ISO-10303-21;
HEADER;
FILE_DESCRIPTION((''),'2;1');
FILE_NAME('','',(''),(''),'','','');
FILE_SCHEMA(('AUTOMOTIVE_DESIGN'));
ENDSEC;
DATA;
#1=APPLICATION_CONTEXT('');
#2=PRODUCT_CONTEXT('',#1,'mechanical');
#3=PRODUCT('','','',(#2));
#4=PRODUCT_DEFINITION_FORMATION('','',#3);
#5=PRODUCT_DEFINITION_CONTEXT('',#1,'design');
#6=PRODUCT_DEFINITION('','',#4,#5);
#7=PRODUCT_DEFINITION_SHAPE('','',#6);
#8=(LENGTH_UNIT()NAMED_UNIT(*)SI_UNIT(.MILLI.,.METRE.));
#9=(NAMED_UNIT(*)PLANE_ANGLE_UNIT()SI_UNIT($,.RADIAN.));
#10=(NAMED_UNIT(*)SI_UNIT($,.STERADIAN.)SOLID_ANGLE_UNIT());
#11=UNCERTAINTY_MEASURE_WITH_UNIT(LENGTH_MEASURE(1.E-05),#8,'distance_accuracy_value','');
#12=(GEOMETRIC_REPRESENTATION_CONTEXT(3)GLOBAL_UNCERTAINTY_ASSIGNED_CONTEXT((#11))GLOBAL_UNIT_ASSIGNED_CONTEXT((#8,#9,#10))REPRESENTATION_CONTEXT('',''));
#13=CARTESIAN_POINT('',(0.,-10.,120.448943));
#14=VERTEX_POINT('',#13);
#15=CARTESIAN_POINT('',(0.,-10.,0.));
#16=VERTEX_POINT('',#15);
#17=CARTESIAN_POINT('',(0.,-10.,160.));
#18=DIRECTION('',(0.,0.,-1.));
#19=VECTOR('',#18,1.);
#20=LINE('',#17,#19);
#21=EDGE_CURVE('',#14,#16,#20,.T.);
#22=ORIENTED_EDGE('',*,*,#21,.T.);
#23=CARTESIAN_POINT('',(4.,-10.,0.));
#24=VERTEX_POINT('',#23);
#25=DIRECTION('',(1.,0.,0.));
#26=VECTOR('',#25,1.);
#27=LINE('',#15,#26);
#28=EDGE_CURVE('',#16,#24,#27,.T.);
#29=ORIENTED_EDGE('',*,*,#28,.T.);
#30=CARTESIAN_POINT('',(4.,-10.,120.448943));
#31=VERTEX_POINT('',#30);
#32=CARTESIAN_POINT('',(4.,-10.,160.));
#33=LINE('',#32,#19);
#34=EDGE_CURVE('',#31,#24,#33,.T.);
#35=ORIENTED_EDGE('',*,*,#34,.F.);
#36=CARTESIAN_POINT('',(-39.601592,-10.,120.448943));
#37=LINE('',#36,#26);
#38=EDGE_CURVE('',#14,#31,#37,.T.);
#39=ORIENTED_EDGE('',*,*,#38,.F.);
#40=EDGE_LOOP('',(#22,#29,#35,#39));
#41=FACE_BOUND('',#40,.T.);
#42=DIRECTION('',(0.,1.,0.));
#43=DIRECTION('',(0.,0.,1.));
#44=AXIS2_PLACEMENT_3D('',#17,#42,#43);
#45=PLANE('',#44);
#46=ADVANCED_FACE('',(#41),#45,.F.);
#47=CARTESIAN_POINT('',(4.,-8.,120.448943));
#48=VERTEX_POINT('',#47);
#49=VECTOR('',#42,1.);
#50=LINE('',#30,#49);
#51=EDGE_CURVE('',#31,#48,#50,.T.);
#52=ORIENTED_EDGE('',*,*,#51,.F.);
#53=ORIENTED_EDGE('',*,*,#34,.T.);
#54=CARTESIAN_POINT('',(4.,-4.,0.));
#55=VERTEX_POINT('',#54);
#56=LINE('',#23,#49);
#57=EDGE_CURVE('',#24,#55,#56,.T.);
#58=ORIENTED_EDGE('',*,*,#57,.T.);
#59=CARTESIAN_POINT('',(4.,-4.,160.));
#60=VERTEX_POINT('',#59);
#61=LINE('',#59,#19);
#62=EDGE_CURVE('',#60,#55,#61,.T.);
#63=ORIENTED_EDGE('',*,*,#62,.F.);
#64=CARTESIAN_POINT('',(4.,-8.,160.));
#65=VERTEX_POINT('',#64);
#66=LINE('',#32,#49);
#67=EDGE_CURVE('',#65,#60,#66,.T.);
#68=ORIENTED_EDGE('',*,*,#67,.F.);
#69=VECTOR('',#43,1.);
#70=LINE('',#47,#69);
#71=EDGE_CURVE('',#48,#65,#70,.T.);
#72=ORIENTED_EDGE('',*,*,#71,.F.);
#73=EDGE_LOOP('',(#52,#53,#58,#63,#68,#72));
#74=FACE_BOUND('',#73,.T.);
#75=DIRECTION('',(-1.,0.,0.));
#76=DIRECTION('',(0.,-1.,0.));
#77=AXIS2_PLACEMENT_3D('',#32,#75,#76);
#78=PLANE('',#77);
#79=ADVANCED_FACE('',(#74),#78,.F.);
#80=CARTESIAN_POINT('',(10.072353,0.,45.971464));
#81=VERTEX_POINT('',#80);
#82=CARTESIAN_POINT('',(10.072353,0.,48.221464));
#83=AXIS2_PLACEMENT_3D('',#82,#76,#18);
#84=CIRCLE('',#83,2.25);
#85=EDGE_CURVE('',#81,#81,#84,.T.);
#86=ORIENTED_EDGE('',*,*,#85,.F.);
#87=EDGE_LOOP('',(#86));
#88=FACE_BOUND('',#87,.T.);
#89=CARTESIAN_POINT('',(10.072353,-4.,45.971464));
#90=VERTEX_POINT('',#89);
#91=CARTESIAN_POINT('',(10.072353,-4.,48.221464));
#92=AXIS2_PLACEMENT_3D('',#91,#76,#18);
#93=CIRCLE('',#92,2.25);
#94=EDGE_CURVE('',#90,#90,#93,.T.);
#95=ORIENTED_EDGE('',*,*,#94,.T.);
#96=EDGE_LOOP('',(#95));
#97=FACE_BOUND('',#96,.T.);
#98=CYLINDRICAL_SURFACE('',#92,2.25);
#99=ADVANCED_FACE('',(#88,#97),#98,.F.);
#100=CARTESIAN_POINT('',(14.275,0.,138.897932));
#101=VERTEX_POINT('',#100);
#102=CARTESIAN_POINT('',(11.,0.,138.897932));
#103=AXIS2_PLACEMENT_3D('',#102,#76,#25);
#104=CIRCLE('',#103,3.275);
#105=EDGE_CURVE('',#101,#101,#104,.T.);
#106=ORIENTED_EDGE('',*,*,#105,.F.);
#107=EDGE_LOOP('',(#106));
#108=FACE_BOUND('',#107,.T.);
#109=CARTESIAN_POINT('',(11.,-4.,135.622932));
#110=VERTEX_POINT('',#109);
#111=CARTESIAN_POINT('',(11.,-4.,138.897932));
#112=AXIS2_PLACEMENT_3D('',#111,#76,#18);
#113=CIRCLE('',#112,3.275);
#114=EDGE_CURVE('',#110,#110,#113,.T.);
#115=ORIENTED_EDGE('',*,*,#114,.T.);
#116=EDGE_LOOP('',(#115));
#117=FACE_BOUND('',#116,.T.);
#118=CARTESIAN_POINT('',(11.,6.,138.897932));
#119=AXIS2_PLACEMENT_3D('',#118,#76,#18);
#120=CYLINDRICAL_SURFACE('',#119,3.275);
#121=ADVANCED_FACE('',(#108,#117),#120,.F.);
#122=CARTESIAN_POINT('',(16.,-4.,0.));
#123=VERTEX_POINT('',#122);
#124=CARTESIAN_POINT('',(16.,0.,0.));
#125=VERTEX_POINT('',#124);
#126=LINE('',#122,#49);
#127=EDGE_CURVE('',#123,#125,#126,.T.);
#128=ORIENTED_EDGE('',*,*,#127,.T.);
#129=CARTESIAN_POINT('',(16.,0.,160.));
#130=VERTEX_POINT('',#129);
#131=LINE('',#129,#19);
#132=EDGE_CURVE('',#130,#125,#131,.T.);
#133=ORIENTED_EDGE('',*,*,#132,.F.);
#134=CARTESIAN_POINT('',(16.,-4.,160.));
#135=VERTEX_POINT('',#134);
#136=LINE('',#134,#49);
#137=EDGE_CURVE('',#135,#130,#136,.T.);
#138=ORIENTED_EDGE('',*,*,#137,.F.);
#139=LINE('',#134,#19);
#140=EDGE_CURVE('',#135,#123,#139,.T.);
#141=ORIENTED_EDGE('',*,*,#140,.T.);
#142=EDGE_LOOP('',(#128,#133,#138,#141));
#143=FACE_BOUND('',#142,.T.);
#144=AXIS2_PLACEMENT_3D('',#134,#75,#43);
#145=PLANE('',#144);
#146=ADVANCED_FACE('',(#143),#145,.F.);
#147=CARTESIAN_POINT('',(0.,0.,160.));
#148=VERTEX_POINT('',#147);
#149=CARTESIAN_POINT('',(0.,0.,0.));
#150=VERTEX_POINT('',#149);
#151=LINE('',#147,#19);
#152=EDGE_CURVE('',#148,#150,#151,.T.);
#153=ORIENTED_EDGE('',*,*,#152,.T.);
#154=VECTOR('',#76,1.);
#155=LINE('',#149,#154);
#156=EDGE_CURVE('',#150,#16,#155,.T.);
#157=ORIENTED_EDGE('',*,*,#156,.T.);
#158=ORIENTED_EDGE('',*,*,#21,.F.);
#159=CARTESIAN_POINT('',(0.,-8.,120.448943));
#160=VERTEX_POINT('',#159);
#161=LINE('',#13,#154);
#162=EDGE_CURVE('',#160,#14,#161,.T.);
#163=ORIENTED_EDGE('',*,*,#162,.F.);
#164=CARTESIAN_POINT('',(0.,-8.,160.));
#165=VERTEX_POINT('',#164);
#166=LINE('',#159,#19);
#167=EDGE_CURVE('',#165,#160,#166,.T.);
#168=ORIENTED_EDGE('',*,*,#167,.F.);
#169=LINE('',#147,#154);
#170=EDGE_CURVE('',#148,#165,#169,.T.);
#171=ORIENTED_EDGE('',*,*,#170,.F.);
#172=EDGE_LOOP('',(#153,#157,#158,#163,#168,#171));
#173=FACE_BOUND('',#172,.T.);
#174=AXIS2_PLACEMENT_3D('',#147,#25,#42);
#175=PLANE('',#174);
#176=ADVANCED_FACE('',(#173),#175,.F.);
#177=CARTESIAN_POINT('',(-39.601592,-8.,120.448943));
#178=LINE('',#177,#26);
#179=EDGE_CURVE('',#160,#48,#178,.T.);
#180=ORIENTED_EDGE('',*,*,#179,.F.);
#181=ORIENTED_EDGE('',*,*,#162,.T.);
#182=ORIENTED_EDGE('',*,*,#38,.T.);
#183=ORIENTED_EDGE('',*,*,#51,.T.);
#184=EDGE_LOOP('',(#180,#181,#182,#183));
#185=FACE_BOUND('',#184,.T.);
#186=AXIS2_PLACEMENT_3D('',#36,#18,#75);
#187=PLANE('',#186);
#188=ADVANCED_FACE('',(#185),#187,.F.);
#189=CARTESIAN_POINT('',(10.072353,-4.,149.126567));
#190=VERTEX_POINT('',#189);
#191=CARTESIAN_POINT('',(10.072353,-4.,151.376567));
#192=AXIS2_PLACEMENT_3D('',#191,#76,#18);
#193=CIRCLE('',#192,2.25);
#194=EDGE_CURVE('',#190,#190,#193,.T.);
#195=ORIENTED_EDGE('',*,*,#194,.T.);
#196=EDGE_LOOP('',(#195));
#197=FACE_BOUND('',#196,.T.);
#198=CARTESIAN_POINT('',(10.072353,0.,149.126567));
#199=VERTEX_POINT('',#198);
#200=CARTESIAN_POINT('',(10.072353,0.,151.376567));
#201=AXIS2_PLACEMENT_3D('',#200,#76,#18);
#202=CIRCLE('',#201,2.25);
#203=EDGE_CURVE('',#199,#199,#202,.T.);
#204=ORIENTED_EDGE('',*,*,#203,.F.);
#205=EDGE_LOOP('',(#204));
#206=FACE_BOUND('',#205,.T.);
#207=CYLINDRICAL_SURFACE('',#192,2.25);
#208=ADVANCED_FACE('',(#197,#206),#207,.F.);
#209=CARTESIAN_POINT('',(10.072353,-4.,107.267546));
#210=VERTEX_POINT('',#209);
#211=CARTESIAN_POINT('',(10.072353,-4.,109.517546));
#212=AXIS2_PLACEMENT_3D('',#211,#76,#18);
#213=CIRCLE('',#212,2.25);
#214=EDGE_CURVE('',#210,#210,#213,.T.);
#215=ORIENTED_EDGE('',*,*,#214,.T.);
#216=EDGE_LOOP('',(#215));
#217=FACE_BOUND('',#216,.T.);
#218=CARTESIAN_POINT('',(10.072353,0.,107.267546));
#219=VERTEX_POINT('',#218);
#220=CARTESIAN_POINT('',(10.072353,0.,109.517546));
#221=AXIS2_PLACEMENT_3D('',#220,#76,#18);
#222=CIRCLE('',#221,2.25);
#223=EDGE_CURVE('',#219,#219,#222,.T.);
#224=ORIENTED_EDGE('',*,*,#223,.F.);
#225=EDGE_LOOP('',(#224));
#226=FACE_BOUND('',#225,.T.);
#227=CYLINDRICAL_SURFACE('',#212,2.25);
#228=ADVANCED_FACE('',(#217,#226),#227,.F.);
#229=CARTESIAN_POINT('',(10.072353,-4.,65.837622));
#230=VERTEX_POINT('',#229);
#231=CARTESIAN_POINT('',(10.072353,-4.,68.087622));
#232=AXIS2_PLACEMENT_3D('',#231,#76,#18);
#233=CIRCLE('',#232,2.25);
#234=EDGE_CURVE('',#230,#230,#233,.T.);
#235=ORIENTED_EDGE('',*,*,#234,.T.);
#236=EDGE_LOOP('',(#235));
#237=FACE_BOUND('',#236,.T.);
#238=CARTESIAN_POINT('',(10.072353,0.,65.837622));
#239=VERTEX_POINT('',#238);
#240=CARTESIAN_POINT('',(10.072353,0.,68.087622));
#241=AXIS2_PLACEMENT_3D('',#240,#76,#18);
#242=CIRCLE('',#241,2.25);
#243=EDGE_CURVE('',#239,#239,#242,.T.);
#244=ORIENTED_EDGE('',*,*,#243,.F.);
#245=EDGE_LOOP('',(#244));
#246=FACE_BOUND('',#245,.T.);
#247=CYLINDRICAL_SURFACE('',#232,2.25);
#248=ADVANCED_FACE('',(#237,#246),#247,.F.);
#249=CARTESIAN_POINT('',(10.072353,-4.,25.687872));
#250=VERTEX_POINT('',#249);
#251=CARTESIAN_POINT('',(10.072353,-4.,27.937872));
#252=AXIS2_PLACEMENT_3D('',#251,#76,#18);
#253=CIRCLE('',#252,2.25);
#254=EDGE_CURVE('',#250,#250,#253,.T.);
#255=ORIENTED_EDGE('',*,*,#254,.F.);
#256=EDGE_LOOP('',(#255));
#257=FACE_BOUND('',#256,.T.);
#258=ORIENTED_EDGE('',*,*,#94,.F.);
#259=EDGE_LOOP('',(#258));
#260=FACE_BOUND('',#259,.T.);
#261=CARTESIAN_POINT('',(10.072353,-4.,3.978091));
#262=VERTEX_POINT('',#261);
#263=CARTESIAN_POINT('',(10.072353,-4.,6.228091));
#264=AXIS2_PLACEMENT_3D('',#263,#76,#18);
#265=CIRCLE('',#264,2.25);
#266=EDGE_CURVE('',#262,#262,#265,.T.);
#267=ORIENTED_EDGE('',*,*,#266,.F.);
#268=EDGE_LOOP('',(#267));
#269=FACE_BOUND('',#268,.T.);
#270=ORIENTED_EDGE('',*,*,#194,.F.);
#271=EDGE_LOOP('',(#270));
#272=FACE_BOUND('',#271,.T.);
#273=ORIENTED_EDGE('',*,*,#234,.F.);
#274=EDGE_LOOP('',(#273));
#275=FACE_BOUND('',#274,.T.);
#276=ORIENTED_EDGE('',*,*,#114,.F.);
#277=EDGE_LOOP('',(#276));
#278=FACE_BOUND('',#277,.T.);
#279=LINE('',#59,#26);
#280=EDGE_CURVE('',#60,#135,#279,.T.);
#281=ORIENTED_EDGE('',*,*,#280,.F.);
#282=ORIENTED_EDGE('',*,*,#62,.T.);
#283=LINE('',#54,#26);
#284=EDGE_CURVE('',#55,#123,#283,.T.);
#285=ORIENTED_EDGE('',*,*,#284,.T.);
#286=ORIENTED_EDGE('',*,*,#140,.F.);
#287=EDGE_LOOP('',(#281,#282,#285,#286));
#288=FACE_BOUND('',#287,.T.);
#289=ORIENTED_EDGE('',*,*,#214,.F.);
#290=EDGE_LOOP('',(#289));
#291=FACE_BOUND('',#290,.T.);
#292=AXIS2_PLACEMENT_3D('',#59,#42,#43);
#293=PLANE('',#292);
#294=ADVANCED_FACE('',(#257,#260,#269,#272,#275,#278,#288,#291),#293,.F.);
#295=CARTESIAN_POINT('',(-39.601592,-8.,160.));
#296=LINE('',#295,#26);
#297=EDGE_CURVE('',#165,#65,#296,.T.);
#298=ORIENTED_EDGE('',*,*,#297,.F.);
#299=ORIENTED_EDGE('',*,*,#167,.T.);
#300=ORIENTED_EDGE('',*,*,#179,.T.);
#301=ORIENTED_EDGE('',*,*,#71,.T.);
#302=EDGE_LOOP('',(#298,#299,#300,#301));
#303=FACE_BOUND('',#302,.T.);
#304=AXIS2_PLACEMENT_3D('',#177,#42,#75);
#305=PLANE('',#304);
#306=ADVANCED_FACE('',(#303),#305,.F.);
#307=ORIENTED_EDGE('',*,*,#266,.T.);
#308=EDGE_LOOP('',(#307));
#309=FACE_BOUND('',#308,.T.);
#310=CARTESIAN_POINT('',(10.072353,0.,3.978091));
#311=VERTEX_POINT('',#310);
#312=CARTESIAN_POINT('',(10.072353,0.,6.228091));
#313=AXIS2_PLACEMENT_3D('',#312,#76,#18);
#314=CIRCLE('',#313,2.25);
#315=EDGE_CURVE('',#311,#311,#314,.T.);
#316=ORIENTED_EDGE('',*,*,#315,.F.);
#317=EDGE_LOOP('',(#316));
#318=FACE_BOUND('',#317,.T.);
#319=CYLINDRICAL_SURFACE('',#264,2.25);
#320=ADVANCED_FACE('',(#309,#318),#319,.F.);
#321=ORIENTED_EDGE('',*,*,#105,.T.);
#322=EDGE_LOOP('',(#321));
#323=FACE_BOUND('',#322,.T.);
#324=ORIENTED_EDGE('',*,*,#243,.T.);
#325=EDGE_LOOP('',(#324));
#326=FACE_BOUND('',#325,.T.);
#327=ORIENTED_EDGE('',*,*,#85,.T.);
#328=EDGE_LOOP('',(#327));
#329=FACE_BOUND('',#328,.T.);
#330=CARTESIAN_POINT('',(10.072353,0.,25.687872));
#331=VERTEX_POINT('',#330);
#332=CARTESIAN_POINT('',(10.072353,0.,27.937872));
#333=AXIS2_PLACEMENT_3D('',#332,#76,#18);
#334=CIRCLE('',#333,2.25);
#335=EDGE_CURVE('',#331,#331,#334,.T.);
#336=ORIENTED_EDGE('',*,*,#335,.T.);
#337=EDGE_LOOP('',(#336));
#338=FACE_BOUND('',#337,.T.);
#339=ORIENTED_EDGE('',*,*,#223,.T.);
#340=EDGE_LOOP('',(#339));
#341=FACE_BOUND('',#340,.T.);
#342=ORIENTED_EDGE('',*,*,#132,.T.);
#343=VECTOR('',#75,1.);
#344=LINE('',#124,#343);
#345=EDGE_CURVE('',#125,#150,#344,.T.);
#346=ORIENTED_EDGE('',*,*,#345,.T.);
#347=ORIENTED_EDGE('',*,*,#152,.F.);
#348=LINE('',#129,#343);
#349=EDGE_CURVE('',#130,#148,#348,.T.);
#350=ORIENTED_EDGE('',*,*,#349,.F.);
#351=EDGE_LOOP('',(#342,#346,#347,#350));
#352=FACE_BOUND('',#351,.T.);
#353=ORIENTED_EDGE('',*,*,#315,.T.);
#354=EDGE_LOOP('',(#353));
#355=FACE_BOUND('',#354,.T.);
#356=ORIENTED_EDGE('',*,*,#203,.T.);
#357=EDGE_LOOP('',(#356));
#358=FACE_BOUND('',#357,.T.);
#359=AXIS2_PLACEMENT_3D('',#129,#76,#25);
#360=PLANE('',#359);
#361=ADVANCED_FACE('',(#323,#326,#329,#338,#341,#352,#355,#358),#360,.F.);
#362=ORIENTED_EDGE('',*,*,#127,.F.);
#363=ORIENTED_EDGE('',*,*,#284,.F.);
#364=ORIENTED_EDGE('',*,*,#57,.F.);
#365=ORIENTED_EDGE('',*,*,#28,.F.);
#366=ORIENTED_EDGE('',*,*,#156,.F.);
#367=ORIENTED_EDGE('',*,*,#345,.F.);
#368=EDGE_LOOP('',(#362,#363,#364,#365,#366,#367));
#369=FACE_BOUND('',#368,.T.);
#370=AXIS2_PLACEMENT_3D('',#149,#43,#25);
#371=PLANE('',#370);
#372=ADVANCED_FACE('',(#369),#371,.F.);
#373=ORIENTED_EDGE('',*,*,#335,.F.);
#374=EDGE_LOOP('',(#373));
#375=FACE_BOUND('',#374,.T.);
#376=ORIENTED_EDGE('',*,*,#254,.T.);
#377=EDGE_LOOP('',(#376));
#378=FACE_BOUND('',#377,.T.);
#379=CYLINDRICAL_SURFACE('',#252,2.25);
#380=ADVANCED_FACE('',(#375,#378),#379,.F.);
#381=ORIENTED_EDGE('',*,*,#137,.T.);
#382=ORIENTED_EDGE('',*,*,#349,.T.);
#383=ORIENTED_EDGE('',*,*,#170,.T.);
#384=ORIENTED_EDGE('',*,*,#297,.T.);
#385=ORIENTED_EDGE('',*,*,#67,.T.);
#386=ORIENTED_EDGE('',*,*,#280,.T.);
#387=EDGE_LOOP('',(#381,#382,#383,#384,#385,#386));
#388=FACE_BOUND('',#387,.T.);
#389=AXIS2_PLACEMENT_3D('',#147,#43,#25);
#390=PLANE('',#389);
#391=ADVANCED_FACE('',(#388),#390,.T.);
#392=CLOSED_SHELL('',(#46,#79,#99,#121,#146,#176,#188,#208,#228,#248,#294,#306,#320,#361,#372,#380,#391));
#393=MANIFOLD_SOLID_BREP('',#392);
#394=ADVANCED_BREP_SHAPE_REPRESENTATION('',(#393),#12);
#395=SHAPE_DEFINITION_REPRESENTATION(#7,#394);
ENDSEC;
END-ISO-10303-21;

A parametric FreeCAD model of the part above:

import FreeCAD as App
import Part
import Sketcher


def add_polygon(sketch, points):
    """Adds a closed chain of lines whose ends are joined by coincident constraints."""
    first, n = sketch.GeometryCount, len(points)
    for a, b in zip(points, points[1:] + points[:1]):
        sketch.addGeometry(Part.LineSegment(App.Vector(*a, 0), App.Vector(*b, 0)), False)
    for i in range(n):
        sketch.addConstraint(Sketcher.Constraint("Coincident", first + i, 2, first + (i + 1) % n, 1))

doc = App.newDocument("Part")
body = doc.addObject("PartDesign::Body", "Body")

# Sketch on XY plane
sketch1 = body.newObject("Sketcher::SketchObject", "Sketch")
sketch1.AttachmentSupport = (doc.getObject("XY_Plane"), [""])
sketch1.MapMode = "FlatFace"
add_polygon(sketch1, [(0, 0), (0, -10), (4, -10), (4, -4), (16, -4), (16, 0)])  # lines 0-5
sketch1.addConstraint(Sketcher.Constraint("Vertical", 0))
sketch1.addConstraint(Sketcher.Constraint("Horizontal", 1))
sketch1.addConstraint(Sketcher.Constraint("Vertical", 2))
sketch1.addConstraint(Sketcher.Constraint("Horizontal", 3))
sketch1.addConstraint(Sketcher.Constraint("Vertical", 4))
sketch1.addConstraint(Sketcher.Constraint("Horizontal", 5))
sketch1.addConstraint(Sketcher.Constraint("Coincident", 5, 2, -1, 1))
sketch1.addConstraint(Sketcher.Constraint("Equal", 1, 4))
sketch1.addConstraint(Sketcher.Constraint("DistanceX", 1, 1, 1, 2, 4.0))
sketch1.addConstraint(Sketcher.Constraint("DistanceX", 3, 1, 3, 2, 12.0))
sketch1.addConstraint(Sketcher.Constraint("DistanceY", 0, 2, 0, 1, 10.0))
pad1 = body.newObject("PartDesign::Pad", "Pad")
pad1.Profile = sketch1
pad1.Length = 160

# Sketch on YZ plane
sketch2 = body.newObject("Sketcher::SketchObject", "Sketch001")
sketch2.AttachmentSupport = (doc.getObject("YZ_Plane"), [""])
sketch2.MapMode = "FlatFace"
sketch2.AttachmentOffset = App.Placement(App.Vector(0, 0, 4), App.Rotation())
add_polygon(sketch2, [(-8, 160), (-10, 160), (-10, 120.4), (-8, 120.4)])  # lines 0-3
sketch2.addConstraint(Sketcher.Constraint("Horizontal", 0))
sketch2.addConstraint(Sketcher.Constraint("Vertical", 1))
sketch2.addConstraint(Sketcher.Constraint("Horizontal", 2))
sketch2.addConstraint(Sketcher.Constraint("Vertical", 3))
sketch2.addConstraint(Sketcher.Constraint("DistanceX", 0, 2, 0, 1, 2.0))
sketch2.addConstraint(Sketcher.Constraint("DistanceX", 0, 2, -1, 1, 10.0))
sketch2.addConstraint(Sketcher.Constraint("DistanceY", -1, 1, 0, 2, 160.0))
sketch2.addConstraint(Sketcher.Constraint("DistanceY", 1, 2, 1, 1, 39.551057))
pocket1 = body.newObject("PartDesign::Pocket", "Pocket")
pocket1.Profile = sketch2
pocket1.Length = 4

# Sketch on XZ plane
sketch3 = body.newObject("Sketcher::SketchObject", "Sketch002")
sketch3.AttachmentSupport = (doc.getObject("XZ_Plane"), [""])
sketch3.MapMode = "FlatFace"
sketch3.AttachmentOffset = App.Placement(App.Vector(0, 0, 4), App.Rotation())
sketch3.addGeometry(Part.Circle(App.Vector(10.1, 6.2, 0), App.Vector(0, 0, 1), 2.2), False)
sketch3.addGeometry(Part.Circle(App.Vector(10.1, 27.9, 0), App.Vector(0, 0, 1), 2.2), False)
sketch3.addGeometry(Part.Circle(App.Vector(10.1, 48.2, 0), App.Vector(0, 0, 1), 2.2), False)
sketch3.addGeometry(Part.Circle(App.Vector(10.1, 68.1, 0), App.Vector(0, 0, 1), 2.2), False)
sketch3.addGeometry(Part.Circle(App.Vector(10.1, 109.5, 0), App.Vector(0, 0, 1), 2.2), False)
sketch3.addGeometry(Part.Circle(App.Vector(10.1, 151.4, 0), App.Vector(0, 0, 1), 2.2), False)
sketch3.addConstraint(Sketcher.Constraint("Equal", 0, 1))
sketch3.addConstraint(Sketcher.Constraint("Equal", 1, 2))
sketch3.addConstraint(Sketcher.Constraint("Equal", 2, 3))
sketch3.addConstraint(Sketcher.Constraint("Equal", 3, 4))
sketch3.addConstraint(Sketcher.Constraint("Equal", 4, 5))
sketch3.addConstraint(Sketcher.Constraint("Vertical", 0, 3, 1, 3))
sketch3.addConstraint(Sketcher.Constraint("Vertical", 1, 3, 2, 3))
sketch3.addConstraint(Sketcher.Constraint("Vertical", 2, 3, 3, 3))
sketch3.addConstraint(Sketcher.Constraint("Vertical", 3, 3, 4, 3))
sketch3.addConstraint(Sketcher.Constraint("Vertical", 4, 3, 5, 3))
sketch3.addConstraint(Sketcher.Constraint("Diameter", 0, 4.5))
sketch3.addConstraint(Sketcher.Constraint("DistanceY", -1, 1, 0, 3, 6.228091))
sketch3.addConstraint(Sketcher.Constraint("DistanceY", -1, 1, 3, 3, 68.087622))
sketch3.addConstraint(Sketcher.Constraint("DistanceY", 0, 3, 1, 3, 21.709782))
sketch3.addConstraint(Sketcher.Constraint("DistanceY", 1, 3, 2, 3, 20.283592))
sketch3.addConstraint(Sketcher.Constraint("DistanceY", 4, 3, 5, 3, 41.859021))
sketch3.addConstraint(Sketcher.Constraint("DistanceX", -1, 1, 0, 3, 10.072353))
sketch3.addConstraint(Sketcher.Constraint("DistanceY", -1, 1, 4, 3, 109.517546))
doc.recompute()
hole = body.newObject("PartDesign::Hole", "Hole")
hole.Profile = sketch3
hole.ThreadType = "None"
hole.Diameter = 4.5
hole.DepthType = "ThroughAll"

# Sketch on XZ plane
sketch4 = body.newObject("Sketcher::SketchObject", "Sketch003")
sketch4.AttachmentSupport = (doc.getObject("XZ_Plane"), [""])
sketch4.MapMode = "FlatFace"
sketch4.AttachmentOffset = App.Placement(App.Vector(0, 0, 4), App.Rotation())
sketch4.addGeometry(Part.Circle(App.Vector(11, 138.9, 0), App.Vector(0, 0, 1), 3.3), False)
sketch4.addConstraint(Sketcher.Constraint("Diameter", 0, 6.55))
sketch4.addConstraint(Sketcher.Constraint("DistanceX", -1, 1, 0, 3, 11.0))
sketch4.addConstraint(Sketcher.Constraint("DistanceY", -1, 1, 0, 3, 138.897932))
pocket2 = body.newObject("PartDesign::Pocket", "Pocket001")
pocket2.Profile = sketch4
pocket2.Length = 10

doc.recompute()
